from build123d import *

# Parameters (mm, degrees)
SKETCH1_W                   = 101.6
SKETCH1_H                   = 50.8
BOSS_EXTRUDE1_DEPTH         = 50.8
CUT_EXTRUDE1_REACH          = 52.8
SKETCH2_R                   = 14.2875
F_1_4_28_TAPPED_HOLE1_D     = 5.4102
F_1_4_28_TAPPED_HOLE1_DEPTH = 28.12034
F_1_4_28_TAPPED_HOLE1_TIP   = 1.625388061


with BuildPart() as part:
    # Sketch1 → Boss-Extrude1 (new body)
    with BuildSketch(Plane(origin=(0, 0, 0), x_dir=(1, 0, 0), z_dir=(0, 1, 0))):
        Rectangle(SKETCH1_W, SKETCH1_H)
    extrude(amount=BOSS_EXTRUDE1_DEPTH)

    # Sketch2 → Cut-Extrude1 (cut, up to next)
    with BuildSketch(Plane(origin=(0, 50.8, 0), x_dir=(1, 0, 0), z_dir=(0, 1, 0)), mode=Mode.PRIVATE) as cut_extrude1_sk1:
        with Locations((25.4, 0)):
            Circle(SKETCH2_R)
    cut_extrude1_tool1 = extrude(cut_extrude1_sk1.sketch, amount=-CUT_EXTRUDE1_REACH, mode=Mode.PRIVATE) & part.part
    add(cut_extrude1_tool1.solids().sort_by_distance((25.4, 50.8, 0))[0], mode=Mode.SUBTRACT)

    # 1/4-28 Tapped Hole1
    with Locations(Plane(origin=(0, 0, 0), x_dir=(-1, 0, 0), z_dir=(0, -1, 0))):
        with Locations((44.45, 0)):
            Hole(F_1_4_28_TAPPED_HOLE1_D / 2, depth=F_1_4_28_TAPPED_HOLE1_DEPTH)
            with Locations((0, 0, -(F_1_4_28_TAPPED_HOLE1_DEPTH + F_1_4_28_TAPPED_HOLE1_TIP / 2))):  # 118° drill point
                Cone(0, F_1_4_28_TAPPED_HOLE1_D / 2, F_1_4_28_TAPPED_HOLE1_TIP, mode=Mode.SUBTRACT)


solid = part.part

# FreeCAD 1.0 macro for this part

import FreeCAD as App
import Part
import Sketcher

V = App.Vector
Q = App.Units.Quantity

doc = App.newDocument("Part")
body = doc.addObject("PartDesign::Body", "Body")

# Sketch on XZ plane
sketch1 = body.newObject("Sketcher::SketchObject", "Sketch")
sketch1.AttachmentSupport = (doc.getObject("XZ_Plane"), [""])
sketch1.MapMode = "FlatFace"
sketch1.addGeometry(Part.LineSegment(V(-51, -25, 0), V(-51, 25, 0)), False)
sketch1.addGeometry(Part.LineSegment(V(-51, 25, 0), V(51, 25, 0)), False)
sketch1.addGeometry(Part.LineSegment(V(51, 25, 0), V(51, -25, 0)), False)
sketch1.addGeometry(Part.LineSegment(V(51, -25, 0), V(-51, -25, 0)), False)
sketch1.addConstraint(Sketcher.Constraint("Coincident", 0, 2, 1, 1))
sketch1.addConstraint(Sketcher.Constraint("Coincident", 1, 2, 2, 1))
sketch1.addConstraint(Sketcher.Constraint("Coincident", 2, 2, 3, 1))
sketch1.addConstraint(Sketcher.Constraint("Coincident", 3, 2, 0, 1))
sketch1.addConstraint(Sketcher.Constraint("Vertical", 0))
sketch1.addConstraint(Sketcher.Constraint("Horizontal", 1))
sketch1.addConstraint(Sketcher.Constraint("Vertical", 2))
sketch1.addConstraint(Sketcher.Constraint("Horizontal", 3))
sketch1.addConstraint(Sketcher.Constraint("Symmetric", 0, 2, 2, 2, -1, 1))
sketch1.addConstraint(Sketcher.Constraint("DistanceX", 1, 1, 1, 2, Q("4 in")))
sketch1.addConstraint(Sketcher.Constraint("DistanceY", 0, 1, 0, 2, Q("2 in")))
pad1 = body.newObject("PartDesign::Pad", "Pad")
pad1.Profile = sketch1
pad1.Length = Q("2 in")
pad1.Reversed = True

# Sketch on XZ plane
sketch2 = body.newObject("Sketcher::SketchObject", "Sketch001")
sketch2.AttachmentSupport = (doc.getObject("XZ_Plane"), [""])
sketch2.MapMode = "FlatFace"
sketch2.AttachmentOffset = App.Placement(V(0, 0, -2 * 25.4), App.Rotation())
sketch2.addGeometry(Part.Circle(V(25, 0, 0), V(0, 0, 1), 14), False)
sketch2.addConstraint(Sketcher.Constraint("PointOnObject", 0, 3, -1))
sketch2.addConstraint(Sketcher.Constraint("Diameter", 0, Q("1.125 in")))
sketch2.addConstraint(Sketcher.Constraint("DistanceX", -1, 1, 0, 3, Q("1 in")))
pocket1 = body.newObject("PartDesign::Pocket", "Pocket")
pocket1.Profile = sketch2
pocket1.Type = "UpToFirst"
pocket1.Reversed = True

# Sketch on XZ plane
sketch3 = body.newObject("Sketcher::SketchObject", "Sketch002")
sketch3.AttachmentSupport = (doc.getObject("XZ_Plane"), [""])
sketch3.MapMode = "FlatFace"
sketch3.addGeometry(Part.Circle(V(-44.5, 0, 0), V(0, 0, 1), 2.7), False)
sketch3.addConstraint(Sketcher.Constraint("PointOnObject", 0, 3, -1))
sketch3.addConstraint(Sketcher.Constraint("Diameter", 0, Q("0.213 in")))
sketch3.addConstraint(Sketcher.Constraint("DistanceX", 0, 3, -1, 1, Q("1.75 in")))
doc.recompute()
hole = body.newObject("PartDesign::Hole", "Hole")
hole.Profile = sketch3
hole.ThreadType = "None"
hole.Diameter = Q("0.213 in")
hole.DepthType = "Dimension"
hole.Depth = Q("1.1071 in")
hole.DrillPoint = "Angled"
hole.DrillPointAngle = 118

doc.recompute()
